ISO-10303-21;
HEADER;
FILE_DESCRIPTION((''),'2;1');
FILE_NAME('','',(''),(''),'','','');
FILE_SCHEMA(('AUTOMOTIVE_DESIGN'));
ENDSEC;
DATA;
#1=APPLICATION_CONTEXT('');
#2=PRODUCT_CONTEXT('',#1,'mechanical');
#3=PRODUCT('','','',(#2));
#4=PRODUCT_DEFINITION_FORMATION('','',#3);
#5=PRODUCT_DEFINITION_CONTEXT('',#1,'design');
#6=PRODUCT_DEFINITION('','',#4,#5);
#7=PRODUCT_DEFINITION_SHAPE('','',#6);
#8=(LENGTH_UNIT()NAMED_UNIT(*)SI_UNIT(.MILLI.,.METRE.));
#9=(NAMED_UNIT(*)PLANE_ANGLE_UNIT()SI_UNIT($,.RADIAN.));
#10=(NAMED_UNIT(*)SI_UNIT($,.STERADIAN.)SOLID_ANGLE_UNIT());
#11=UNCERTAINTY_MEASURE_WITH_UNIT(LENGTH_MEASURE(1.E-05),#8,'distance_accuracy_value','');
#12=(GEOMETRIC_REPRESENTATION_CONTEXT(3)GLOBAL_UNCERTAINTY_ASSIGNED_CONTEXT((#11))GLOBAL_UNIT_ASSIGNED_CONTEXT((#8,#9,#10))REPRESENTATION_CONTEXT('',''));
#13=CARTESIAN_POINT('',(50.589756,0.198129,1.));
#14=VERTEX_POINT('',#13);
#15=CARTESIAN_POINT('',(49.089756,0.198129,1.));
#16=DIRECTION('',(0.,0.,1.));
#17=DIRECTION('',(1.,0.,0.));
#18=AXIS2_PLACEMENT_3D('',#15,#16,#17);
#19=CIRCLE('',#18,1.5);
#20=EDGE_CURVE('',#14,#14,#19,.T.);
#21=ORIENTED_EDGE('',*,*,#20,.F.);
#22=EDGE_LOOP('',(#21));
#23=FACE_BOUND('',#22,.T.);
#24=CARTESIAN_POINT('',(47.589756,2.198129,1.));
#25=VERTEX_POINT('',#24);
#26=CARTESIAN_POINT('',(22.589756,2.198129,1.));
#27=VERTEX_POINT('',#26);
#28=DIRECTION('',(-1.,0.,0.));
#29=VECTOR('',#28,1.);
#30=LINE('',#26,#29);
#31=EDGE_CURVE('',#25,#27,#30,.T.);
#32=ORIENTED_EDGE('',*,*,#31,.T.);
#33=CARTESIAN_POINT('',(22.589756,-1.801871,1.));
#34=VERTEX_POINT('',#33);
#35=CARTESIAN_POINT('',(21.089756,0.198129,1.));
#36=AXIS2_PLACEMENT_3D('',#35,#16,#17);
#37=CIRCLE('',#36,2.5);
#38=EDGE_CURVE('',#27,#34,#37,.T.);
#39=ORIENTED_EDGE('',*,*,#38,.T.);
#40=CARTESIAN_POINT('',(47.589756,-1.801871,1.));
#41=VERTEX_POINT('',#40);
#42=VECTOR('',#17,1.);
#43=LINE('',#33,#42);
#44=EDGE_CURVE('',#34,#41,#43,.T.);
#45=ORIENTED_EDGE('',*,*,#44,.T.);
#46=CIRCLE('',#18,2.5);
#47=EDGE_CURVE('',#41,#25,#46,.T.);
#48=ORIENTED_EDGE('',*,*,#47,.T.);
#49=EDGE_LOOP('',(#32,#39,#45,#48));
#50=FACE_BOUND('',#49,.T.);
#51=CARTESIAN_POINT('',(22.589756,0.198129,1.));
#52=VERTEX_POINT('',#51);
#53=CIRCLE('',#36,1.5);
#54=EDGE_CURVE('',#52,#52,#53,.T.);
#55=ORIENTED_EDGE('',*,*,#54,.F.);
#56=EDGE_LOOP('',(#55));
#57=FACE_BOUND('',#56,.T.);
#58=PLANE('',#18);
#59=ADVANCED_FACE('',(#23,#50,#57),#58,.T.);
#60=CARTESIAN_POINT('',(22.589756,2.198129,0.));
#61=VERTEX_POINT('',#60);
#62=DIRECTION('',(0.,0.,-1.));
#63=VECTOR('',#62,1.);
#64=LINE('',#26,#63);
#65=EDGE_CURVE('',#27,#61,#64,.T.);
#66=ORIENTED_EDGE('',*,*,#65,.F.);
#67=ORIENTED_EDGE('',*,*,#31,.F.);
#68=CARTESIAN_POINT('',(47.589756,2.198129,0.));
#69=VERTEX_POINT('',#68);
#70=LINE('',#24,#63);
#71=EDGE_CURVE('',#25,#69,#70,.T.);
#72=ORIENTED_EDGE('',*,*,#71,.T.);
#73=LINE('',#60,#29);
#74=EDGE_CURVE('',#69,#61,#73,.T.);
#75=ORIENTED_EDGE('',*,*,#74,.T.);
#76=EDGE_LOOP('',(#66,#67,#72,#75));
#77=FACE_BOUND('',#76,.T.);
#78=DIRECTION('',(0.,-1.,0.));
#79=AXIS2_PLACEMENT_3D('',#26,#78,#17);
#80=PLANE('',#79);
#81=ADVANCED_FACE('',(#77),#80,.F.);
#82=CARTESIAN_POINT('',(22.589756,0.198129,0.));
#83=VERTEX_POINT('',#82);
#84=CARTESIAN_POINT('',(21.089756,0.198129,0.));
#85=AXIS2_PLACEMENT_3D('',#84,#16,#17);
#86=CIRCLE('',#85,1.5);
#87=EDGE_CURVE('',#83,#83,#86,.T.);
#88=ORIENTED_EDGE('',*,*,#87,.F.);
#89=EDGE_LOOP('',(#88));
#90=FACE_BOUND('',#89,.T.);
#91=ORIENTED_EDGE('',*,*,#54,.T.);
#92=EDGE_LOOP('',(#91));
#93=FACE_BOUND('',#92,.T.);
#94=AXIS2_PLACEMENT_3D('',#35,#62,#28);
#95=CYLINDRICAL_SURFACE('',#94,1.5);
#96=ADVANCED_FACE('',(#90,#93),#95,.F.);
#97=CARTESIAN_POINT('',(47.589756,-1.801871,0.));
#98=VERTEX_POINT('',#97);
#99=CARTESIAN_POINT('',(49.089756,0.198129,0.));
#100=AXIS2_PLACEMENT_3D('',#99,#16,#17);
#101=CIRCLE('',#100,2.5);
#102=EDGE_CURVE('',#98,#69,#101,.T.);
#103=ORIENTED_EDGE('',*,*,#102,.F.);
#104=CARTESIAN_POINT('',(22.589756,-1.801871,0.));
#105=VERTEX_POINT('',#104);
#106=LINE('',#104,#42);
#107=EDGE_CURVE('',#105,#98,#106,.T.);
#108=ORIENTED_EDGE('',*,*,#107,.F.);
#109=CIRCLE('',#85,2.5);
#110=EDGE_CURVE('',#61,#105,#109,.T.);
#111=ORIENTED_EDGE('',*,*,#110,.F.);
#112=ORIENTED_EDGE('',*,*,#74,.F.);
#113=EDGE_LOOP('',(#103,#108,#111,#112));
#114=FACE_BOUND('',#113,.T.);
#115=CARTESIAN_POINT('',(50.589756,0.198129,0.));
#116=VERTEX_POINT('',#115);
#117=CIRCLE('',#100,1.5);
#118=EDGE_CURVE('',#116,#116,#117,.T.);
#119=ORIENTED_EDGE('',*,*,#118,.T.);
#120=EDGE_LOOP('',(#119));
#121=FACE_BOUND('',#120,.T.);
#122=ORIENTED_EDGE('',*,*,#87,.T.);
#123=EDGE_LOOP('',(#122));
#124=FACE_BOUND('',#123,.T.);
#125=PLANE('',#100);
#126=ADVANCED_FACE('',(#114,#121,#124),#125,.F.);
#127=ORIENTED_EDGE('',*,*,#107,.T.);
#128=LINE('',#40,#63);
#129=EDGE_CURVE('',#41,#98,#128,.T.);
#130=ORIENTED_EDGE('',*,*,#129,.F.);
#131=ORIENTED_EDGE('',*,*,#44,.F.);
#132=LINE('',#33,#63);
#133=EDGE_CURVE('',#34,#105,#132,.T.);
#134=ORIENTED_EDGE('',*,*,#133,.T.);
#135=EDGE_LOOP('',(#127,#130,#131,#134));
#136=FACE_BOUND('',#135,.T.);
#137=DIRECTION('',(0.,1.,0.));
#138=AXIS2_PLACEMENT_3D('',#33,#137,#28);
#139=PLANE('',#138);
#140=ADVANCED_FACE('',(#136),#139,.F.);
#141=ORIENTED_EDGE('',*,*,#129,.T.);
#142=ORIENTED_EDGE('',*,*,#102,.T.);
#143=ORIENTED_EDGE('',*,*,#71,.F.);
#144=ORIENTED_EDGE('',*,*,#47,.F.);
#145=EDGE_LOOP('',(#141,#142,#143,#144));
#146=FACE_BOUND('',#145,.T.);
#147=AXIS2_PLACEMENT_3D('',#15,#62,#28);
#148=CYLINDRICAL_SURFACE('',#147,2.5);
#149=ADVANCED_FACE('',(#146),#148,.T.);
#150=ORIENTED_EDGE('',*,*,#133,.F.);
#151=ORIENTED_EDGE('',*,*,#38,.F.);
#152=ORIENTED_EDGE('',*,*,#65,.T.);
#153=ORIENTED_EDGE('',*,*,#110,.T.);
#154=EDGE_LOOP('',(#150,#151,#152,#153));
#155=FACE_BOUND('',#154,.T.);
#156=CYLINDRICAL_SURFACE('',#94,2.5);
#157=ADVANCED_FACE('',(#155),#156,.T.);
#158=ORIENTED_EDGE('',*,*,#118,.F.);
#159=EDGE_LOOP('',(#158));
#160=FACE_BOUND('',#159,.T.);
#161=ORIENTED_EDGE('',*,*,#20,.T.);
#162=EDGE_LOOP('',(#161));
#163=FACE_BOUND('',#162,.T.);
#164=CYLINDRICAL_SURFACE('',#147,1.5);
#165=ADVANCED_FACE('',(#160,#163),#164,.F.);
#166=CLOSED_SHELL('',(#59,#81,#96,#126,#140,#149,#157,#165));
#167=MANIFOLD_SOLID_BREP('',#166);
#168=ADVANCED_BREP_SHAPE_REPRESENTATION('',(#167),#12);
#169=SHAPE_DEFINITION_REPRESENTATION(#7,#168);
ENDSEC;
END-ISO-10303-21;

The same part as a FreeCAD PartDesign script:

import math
import FreeCAD as App
import Part
import Sketcher
from FreeCAD import Vector
Q = App.Units.Quantity

doc = App.newDocument("Part")
body = doc.addObject("PartDesign::Body", "Body")

# Sketch on XY plane
sketch1 = body.newObject("Sketcher::SketchObject", "Sketch")
sketch1.AttachmentSupport = (doc.getObject("XY_Plane"), [""])
sketch1.MapMode = "FlatFace"
sketch1.addGeometry([
    Part.LineSegment(Vector(47.6, 2.2, 0), Vector(22.6, 2.2, 0)),  # 0
    Part.ArcOfCircle(Part.Circle(Vector(21.1, 0.2, 0), Vector(0, 0, 1), 2.5), math.radians(53), math.radians(307)),  # 1
    Part.LineSegment(Vector(22.6, -1.8, 0), Vector(47.6, -1.8, 0)),  # 2
    Part.ArcOfCircle(Part.Circle(Vector(49.1, 0.2, 0), Vector(0, 0, 1), 2.5), math.radians(-127), math.radians(127)),  # 3
    Part.Circle(Vector(49.1, 0.2, 0), Vector(0, 0, 1), 1.5),  # 4
    Part.Circle(Vector(21.1, 0.2, 0), Vector(0, 0, 1), 1.5),  # 5
], False)
sketch1.addConstraint([
    Sketcher.Constraint("Coincident", 0, 2, 1, 1),
    Sketcher.Constraint("Coincident", 1, 2, 2, 1),
    Sketcher.Constraint("Coincident", 2, 2, 3, 1),
    Sketcher.Constraint("Coincident", 3, 2, 0, 1),
    Sketcher.Constraint("Horizontal", 0),
    Sketcher.Constraint("Horizontal", 2),
    Sketcher.Constraint("Coincident", 4, 3, 3, 3),
    Sketcher.Constraint("Coincident", 5, 3, 1, 3),
    Sketcher.Constraint("Equal", 1, 3),
    Sketcher.Constraint("Equal", 4, 5),
    Sketcher.Constraint("Horizontal", 1, 3, 3, 3),
    Sketcher.Constraint("Vertical", 0, 2, 1, 2),
    Sketcher.Constraint("Diameter", 4, Q("3 mm")),
    Sketcher.Constraint("Radius", 1, Q("2.5 mm")),
    Sketcher.Constraint("DistanceX", 0, 2, 0, 1, Q("25 mm")),
    Sketcher.Constraint("DistanceX", 1, 3, 3, 3, Q("28 mm")),
    Sketcher.Constraint("DistanceY", -1, 1, 1, 3, Q("0.198129 mm")),
    Sketcher.Constraint("DistanceX", -1, 1, 1, 3, Q("21.089756 mm")),
])
pad1 = body.newObject("PartDesign::Pad", "Pad")
pad1.Profile = sketch1
pad1.Length = 1

doc.recompute()
